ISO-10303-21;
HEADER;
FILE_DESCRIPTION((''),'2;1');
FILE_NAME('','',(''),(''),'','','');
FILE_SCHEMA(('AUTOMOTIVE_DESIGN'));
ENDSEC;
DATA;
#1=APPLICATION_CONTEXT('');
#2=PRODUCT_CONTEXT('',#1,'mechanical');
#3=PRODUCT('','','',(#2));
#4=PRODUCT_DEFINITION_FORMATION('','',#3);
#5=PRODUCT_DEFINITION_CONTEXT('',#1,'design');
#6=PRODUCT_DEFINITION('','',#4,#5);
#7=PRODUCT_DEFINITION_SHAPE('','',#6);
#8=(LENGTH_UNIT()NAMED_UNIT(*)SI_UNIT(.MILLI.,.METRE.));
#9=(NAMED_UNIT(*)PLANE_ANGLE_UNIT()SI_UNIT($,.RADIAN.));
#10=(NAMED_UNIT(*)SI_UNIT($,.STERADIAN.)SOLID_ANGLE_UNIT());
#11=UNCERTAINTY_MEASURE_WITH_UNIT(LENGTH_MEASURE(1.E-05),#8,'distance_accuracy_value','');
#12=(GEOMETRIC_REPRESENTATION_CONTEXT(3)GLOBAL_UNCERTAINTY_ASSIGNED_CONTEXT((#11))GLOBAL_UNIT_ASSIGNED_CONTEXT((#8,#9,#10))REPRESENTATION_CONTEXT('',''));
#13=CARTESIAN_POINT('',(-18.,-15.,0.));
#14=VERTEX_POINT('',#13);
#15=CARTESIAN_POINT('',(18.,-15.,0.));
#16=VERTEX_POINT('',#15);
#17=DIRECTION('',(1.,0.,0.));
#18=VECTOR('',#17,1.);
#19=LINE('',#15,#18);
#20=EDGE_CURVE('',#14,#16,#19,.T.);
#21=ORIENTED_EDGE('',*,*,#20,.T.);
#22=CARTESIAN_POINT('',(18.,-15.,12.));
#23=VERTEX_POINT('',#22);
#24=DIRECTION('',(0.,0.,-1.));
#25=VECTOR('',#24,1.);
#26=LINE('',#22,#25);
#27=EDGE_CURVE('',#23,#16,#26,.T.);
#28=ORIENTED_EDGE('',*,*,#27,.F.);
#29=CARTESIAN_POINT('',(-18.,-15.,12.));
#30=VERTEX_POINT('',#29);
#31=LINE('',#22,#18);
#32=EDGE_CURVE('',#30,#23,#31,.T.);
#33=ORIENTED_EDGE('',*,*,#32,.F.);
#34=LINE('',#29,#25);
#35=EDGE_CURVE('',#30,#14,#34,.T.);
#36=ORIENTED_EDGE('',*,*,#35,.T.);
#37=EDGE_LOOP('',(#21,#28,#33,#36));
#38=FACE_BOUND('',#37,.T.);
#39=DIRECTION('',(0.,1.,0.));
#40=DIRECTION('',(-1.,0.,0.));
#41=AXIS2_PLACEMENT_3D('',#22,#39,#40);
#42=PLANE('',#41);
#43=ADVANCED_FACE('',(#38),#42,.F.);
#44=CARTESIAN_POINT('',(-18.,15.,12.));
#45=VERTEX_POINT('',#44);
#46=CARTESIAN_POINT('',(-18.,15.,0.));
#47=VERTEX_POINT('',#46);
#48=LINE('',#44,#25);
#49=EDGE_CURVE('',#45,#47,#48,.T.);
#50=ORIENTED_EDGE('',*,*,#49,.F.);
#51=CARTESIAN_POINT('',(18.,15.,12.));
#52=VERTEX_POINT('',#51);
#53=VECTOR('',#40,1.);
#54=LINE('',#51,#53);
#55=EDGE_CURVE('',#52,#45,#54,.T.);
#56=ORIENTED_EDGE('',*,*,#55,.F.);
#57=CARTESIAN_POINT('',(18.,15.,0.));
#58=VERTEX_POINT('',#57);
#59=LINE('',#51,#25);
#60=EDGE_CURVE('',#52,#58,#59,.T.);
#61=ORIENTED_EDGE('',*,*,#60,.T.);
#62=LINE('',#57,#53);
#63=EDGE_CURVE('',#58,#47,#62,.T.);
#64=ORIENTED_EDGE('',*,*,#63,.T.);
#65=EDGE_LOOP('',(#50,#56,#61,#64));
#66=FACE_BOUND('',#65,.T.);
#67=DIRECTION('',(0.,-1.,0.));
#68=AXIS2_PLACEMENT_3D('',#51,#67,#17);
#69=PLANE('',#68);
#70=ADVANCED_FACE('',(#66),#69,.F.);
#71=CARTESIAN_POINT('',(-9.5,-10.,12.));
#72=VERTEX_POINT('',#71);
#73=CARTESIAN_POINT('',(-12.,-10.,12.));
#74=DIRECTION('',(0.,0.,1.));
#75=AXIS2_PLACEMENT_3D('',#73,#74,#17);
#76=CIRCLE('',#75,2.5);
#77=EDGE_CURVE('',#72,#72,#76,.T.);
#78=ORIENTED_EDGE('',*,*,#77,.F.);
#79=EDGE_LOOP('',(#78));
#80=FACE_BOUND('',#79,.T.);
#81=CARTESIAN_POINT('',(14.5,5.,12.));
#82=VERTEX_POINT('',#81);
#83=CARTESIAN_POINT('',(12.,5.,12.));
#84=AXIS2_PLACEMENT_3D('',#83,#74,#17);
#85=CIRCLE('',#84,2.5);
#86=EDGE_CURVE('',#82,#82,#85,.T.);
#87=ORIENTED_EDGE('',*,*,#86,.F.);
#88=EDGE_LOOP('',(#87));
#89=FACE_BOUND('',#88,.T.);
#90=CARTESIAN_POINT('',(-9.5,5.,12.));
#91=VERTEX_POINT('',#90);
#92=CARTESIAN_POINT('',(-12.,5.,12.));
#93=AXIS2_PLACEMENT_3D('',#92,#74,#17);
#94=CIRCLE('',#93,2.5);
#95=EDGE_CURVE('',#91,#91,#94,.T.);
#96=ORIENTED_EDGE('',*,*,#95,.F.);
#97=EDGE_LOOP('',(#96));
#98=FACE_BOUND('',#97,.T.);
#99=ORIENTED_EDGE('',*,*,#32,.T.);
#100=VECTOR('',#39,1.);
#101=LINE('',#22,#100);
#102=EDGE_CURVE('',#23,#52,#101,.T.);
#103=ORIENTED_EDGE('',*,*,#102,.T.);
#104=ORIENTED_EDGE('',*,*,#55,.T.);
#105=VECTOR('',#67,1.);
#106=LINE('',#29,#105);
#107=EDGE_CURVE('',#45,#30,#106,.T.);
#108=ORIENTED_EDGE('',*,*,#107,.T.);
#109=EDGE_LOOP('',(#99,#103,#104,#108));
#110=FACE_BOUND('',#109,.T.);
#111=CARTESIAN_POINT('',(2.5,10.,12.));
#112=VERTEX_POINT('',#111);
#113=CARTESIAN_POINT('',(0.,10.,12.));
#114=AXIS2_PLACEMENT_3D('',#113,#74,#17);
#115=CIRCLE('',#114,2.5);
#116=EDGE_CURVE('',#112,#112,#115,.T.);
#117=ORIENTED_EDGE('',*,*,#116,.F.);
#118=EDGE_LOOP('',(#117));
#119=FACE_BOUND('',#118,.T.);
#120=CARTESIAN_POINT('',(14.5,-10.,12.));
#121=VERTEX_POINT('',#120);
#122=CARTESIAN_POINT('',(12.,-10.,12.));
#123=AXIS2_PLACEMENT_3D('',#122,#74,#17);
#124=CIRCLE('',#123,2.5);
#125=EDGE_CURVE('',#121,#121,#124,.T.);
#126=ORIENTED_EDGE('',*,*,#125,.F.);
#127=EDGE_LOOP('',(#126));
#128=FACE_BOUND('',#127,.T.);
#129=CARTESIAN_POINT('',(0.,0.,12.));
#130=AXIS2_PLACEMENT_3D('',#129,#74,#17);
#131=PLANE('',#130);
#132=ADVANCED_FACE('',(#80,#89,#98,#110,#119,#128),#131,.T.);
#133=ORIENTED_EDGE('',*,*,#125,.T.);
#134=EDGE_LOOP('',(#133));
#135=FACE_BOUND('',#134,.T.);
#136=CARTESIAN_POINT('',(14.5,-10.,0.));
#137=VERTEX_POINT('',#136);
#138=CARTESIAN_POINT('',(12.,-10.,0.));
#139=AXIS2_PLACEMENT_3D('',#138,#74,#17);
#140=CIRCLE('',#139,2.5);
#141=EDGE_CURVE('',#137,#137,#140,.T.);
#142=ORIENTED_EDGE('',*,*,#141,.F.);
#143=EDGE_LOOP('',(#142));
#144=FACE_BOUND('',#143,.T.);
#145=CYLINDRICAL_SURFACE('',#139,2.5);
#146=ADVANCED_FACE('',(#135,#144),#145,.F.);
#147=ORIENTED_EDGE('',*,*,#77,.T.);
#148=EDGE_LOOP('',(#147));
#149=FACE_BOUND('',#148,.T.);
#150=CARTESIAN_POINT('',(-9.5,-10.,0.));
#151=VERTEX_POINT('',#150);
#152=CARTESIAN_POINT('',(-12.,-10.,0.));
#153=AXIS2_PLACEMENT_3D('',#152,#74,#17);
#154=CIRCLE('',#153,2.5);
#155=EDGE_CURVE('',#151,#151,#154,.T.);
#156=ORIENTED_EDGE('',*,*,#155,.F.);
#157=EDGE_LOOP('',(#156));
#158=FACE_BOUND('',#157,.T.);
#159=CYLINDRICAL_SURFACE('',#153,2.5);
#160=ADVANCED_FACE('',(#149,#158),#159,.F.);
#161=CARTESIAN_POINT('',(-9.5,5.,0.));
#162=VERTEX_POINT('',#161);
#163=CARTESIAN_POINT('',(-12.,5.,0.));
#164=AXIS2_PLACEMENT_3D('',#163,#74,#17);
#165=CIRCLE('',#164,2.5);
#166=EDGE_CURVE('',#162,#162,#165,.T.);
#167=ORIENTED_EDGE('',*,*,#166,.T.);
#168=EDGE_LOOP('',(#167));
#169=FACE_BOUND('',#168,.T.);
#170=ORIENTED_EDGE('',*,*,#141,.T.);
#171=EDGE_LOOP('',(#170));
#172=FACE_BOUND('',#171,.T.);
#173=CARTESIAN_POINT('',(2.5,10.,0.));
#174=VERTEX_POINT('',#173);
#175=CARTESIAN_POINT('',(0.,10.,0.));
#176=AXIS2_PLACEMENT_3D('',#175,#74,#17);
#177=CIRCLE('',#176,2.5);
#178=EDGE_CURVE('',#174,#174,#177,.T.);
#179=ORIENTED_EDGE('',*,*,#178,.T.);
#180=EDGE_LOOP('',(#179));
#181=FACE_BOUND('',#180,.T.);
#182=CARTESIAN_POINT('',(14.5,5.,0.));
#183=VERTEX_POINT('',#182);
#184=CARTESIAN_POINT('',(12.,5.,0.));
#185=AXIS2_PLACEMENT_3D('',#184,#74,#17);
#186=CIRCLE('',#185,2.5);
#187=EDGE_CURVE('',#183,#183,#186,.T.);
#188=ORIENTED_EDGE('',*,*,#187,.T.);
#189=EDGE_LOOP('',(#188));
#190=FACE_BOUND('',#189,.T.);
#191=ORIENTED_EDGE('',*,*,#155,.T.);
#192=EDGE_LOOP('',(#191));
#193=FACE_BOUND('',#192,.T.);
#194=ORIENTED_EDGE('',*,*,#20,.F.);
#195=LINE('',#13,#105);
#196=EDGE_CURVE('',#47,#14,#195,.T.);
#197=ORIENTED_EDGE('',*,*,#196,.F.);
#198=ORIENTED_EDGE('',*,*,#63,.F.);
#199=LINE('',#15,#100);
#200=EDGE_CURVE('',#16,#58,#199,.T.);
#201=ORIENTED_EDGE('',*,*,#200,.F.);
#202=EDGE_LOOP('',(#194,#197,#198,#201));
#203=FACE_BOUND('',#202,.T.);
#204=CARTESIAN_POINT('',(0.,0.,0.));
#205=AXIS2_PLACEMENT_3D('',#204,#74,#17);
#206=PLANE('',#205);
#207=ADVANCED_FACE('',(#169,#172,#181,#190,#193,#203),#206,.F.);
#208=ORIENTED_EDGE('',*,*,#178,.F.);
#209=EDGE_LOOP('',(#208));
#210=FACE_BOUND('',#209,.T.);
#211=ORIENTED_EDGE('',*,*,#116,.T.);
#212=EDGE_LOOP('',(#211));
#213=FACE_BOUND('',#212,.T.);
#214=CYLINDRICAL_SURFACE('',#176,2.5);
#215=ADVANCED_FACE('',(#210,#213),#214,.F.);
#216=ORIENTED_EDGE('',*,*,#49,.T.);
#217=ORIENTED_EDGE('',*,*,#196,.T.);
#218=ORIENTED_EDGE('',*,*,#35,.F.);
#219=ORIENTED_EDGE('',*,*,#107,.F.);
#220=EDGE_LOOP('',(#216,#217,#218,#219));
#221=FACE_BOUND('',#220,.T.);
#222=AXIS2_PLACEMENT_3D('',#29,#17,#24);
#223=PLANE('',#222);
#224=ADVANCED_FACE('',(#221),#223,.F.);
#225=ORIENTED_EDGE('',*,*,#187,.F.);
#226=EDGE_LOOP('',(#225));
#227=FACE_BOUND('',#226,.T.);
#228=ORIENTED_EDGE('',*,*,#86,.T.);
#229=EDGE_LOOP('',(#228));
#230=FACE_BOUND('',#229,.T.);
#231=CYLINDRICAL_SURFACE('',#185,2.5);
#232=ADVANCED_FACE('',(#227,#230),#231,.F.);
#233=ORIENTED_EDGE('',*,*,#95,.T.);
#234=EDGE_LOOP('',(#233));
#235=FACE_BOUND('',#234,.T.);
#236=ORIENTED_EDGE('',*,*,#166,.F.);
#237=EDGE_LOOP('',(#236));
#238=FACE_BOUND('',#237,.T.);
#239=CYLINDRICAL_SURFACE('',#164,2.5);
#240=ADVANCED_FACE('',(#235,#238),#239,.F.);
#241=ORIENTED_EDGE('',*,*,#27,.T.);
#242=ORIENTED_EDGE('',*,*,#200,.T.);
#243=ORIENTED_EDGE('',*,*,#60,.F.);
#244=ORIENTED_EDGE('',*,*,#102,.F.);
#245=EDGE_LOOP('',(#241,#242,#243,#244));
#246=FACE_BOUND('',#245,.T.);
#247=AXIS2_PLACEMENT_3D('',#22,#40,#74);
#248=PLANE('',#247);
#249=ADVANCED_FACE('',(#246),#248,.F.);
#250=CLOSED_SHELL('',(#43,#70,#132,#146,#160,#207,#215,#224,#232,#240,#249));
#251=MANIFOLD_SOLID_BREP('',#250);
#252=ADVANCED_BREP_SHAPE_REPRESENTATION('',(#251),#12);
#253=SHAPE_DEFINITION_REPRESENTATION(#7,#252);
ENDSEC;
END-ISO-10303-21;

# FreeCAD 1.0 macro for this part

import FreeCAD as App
import Part
import Sketcher

V = App.Vector
Q = App.Units.Quantity


def add_polygon(sketch, points):
    """Adds a closed chain of lines whose ends are joined by coincident constraints."""
    first, n = sketch.GeometryCount, len(points)
    for a, b in zip(points, points[1:] + points[:1]):
        sketch.addGeometry(Part.LineSegment(App.Vector(*a, 0), App.Vector(*b, 0)), False)
    for i in range(n):
        sketch.addConstraint(Sketcher.Constraint("Coincident", first + i, 2, first + (i + 1) % n, 1))

doc = App.newDocument("Part")
params = doc.addObject("Spreadsheet::Sheet", "Params")
for row, (alias, value) in enumerate([
    ("sketch1_width", "36 mm"),
    ("sketch1_height", "30 mm"),
    ("pad1_length", "12 mm"),
    ("sketch2_diameter", "5 mm"),
    ("pocket1_length", "12 mm"),
    ("sketch3_diameter", "5 mm"),
    ("pocket2_length", "12 mm"),
], start=1):
    params.set(f"A{row}", alias)
    params.set(f"B{row}", "=" + value)
    params.setAlias(f"B{row}", alias)

body = doc.addObject("PartDesign::Body", "Body")

# Sketch on XY plane
sketch1 = body.newObject("Sketcher::SketchObject", "Sketch")
sketch1.AttachmentSupport = (doc.getObject("XY_Plane"), [""])
sketch1.MapMode = "FlatFace"
add_polygon(sketch1, [(-18, 15), (-18, -15), (18, -15), (18, 15)])  # lines 0-3
sketch1.addConstraint([
    Sketcher.Constraint("Vertical", 0),
    Sketcher.Constraint("Horizontal", 1),
    Sketcher.Constraint("Vertical", 2),
    Sketcher.Constraint("Horizontal", 3),
    Sketcher.Constraint("Symmetric", 0, 2, 2, 2, -1, 1),
    Sketcher.Constraint("DistanceX", 1, 1, 1, 2, Q("36 mm")),
    Sketcher.Constraint("DistanceY", 0, 2, 0, 1, Q("30 mm")),
])
sketch1.setExpression("Constraints[9]", "Params.sketch1_width")
sketch1.setExpression("Constraints[10]", "Params.sketch1_height")
pad1 = body.newObject("PartDesign::Pad", "Pad")
pad1.Profile = sketch1
pad1.setExpression("Length", "Params.pad1_length")

# Sketch on XY plane
sketch2 = body.newObject("Sketcher::SketchObject", "Sketch001")
sketch2.AttachmentSupport = (doc.getObject("XY_Plane"), [""])
sketch2.MapMode = "FlatFace"
sketch2.AttachmentOffset = App.Placement(V(0, 0, 12), App.Rotation())
sketch2.addGeometry([
    Part.Circle(V(-12, 5, 0), V(0, 0, 1), 2.5),
    Part.Circle(V(12, 5, 0), V(0, 0, 1), 2.5),
    Part.Circle(V(12, -10, 0), V(0, 0, 1), 2.5),
    Part.Circle(V(-12, -10, 0), V(0, 0, 1), 2.5),
], False)
sketch2.addConstraint([
    Sketcher.Constraint("Equal", 0, 1),
    Sketcher.Constraint("Equal", 1, 2),
    Sketcher.Constraint("Equal", 2, 3),
    Sketcher.Constraint("Symmetric", 0, 3, 1, 3, -2),
    Sketcher.Constraint("Symmetric", 2, 3, 3, 3, -2),
    Sketcher.Constraint("Vertical", 1, 3, 2, 3),
    Sketcher.Constraint("Diameter", 0, Q("5 mm")),
    Sketcher.Constraint("DistanceX", 0, 3, -1, 1, Q("12 mm")),
    Sketcher.Constraint("DistanceY", -1, 1, 0, 3, Q("5 mm")),
    Sketcher.Constraint("DistanceY", 2, 3, -1, 1, Q("10 mm")),
])
sketch2.setExpression("Constraints[6]", "Params.sketch2_diameter")
pocket1 = body.newObject("PartDesign::Pocket", "Pocket")
pocket1.Profile = sketch2
pocket1.setExpression("Length", "Params.pocket1_length")

# Sketch on XY plane
sketch3 = body.newObject("Sketcher::SketchObject", "Sketch002")
sketch3.AttachmentSupport = (doc.getObject("XY_Plane"), [""])
sketch3.MapMode = "FlatFace"
sketch3.AttachmentOffset = App.Placement(V(0, 0, 12), App.Rotation())
sketch3.addGeometry(Part.Circle(V(0, 10, 0), V(0, 0, 1), 2.5), False)
sketch3.addConstraint([
    Sketcher.Constraint("PointOnObject", 0, 3, -2),
    Sketcher.Constraint("Diameter", 0, Q("5 mm")),
    Sketcher.Constraint("DistanceY", -1, 1, 0, 3, Q("10 mm")),
])
sketch3.setExpression("Constraints[1]", "Params.sketch3_diameter")
pocket2 = body.newObject("PartDesign::Pocket", "Pocket001")
pocket2.Profile = sketch3
pocket2.setExpression("Length", "Params.pocket2_length")

doc.recompute()
